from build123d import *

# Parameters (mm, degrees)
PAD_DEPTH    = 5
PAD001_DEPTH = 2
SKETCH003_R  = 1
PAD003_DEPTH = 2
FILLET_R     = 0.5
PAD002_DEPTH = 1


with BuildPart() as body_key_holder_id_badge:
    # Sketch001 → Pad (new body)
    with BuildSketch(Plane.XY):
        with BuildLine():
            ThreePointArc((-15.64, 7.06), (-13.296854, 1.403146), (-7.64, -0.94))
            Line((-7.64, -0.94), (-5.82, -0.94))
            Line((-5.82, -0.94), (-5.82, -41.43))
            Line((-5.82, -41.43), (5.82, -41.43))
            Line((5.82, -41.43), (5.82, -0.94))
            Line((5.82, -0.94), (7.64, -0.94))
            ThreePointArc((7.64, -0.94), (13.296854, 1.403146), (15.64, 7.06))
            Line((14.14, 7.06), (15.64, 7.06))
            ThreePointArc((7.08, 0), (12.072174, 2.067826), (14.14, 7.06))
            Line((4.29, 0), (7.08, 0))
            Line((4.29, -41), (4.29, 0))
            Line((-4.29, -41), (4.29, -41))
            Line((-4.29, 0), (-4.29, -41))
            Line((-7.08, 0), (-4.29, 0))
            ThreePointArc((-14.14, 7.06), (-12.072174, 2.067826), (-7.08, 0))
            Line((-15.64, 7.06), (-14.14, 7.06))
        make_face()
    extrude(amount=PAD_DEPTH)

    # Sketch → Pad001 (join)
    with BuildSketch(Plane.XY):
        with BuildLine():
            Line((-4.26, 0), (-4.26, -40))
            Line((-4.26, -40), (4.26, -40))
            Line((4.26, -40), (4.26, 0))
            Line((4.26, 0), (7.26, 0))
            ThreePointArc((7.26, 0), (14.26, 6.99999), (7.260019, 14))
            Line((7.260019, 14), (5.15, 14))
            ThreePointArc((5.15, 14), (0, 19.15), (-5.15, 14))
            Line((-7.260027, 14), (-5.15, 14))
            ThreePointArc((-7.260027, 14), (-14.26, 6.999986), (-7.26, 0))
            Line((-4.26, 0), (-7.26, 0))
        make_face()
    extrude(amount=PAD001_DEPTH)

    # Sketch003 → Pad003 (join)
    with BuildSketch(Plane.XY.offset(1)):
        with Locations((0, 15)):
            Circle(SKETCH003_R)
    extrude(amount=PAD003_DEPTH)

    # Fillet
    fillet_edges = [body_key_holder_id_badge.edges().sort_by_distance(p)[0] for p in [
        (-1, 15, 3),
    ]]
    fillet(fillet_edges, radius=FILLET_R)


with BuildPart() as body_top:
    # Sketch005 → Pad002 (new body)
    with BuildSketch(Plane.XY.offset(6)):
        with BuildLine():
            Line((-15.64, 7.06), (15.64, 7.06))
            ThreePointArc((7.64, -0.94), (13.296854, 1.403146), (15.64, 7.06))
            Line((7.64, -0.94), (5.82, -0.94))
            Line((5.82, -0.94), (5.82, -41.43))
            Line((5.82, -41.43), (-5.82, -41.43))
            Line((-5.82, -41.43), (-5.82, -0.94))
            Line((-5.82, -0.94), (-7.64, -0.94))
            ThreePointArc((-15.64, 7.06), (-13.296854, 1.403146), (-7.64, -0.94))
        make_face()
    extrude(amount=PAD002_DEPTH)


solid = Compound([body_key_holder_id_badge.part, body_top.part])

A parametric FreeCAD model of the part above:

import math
import FreeCAD as App
import Part
import Sketcher
Q = App.Units.Quantity


def edges_at(feature, points):
    """Names of the edges that pass closest to the given points."""
    edges = feature.Shape.Edges
    near = lambda p: min(range(len(edges)), key=lambda i: edges[i].distToShape(Part.Vertex(*p))[0])
    return sorted({f"Edge{near(p) + 1}" for p in points})

doc = App.newDocument("Part")
body = doc.addObject("PartDesign::Body", "Body")

# Sketch on XY plane
sketch1 = doc.addObject("Sketcher::SketchObject", "Sketch")
body.addObject(sketch1)
sketch1.AttachmentSupport = (doc.XY_Plane, [""])
sketch1.MapMode = "FlatFace"
sketch1.addGeometry([
    Part.ArcOfCircle(Part.Circle(App.Vector(-7.6, 7.1, 0), App.Vector(0, 0, 1), 8), math.radians(-180), math.radians(-90)),  # 0
    Part.LineSegment(App.Vector(-7.6, -0.9, 0), App.Vector(-5.8, -0.9, 0)),  # 1
    Part.LineSegment(App.Vector(-5.8, -0.9, 0), App.Vector(-5.8, -41.4, 0)),  # 2
    Part.LineSegment(App.Vector(-5.8, -41.4, 0), App.Vector(5.8, -41.4, 0)),  # 3
    Part.LineSegment(App.Vector(5.8, -41.4, 0), App.Vector(5.8, -0.9, 0)),  # 4
    Part.LineSegment(App.Vector(5.8, -0.9, 0), App.Vector(7.6, -0.9, 0)),  # 5
    Part.ArcOfCircle(Part.Circle(App.Vector(7.6, 7.1, 0), App.Vector(0, 0, 1), 8), math.radians(-90), math.radians(0)),  # 6
    Part.LineSegment(App.Vector(15.6, 7.1, 0), App.Vector(14.1, 7.1, 0)),  # 7
    Part.ArcOfCircle(Part.Circle(App.Vector(7.1, 7.1, 0), App.Vector(0, 0, 1), 7.1), math.radians(-90), math.radians(0)),  # 8
    Part.LineSegment(App.Vector(7.1, 0, 0), App.Vector(4.3, 0, 0)),  # 9
    Part.LineSegment(App.Vector(4.3, 0, 0), App.Vector(4.3, -41, 0)),  # 10
    Part.LineSegment(App.Vector(4.3, -41, 0), App.Vector(-4.3, -41, 0)),  # 11
    Part.LineSegment(App.Vector(-4.3, -41, 0), App.Vector(-4.3, 0, 0)),  # 12
    Part.LineSegment(App.Vector(-4.3, 0, 0), App.Vector(-7.1, 0, 0)),  # 13
    Part.ArcOfCircle(Part.Circle(App.Vector(-7.1, 7.1, 0), App.Vector(0, 0, 1), 7.1), math.radians(180), math.radians(270)),  # 14
    Part.LineSegment(App.Vector(-14.1, 7.1, 0), App.Vector(-15.6, 7.1, 0)),  # 15
], False)
sketch1.addConstraint([
    Sketcher.Constraint("Tangent", 0, 2, 1, 1),
    Sketcher.Constraint("Coincident", 1, 2, 2, 1),
    Sketcher.Constraint("Coincident", 2, 2, 3, 1),
    Sketcher.Constraint("Coincident", 3, 2, 4, 1),
    Sketcher.Constraint("Coincident", 4, 2, 5, 1),
    Sketcher.Constraint("Tangent", 5, 2, 6, 1),
    Sketcher.Constraint("Coincident", 6, 2, 7, 1),
    Sketcher.Constraint("Coincident", 7, 2, 8, 2),
    Sketcher.Constraint("Tangent", 8, 1, 9, 1),
    Sketcher.Constraint("Coincident", 9, 2, 10, 1),
    Sketcher.Constraint("Coincident", 10, 2, 11, 1),
    Sketcher.Constraint("Coincident", 11, 2, 12, 1),
    Sketcher.Constraint("Coincident", 12, 2, 13, 1),
    Sketcher.Constraint("Tangent", 13, 2, 14, 2),
    Sketcher.Constraint("Coincident", 14, 1, 15, 1),
    Sketcher.Constraint("Coincident", 15, 2, 0, 1),
    Sketcher.Constraint("Horizontal", 1),
    Sketcher.Constraint("Vertical", 2),
    Sketcher.Constraint("Horizontal", 3),
    Sketcher.Constraint("Vertical", 4),
    Sketcher.Constraint("Horizontal", 5),
    Sketcher.Constraint("Horizontal", 7),
    Sketcher.Constraint("Horizontal", 9),
    Sketcher.Constraint("Vertical", 10),
    Sketcher.Constraint("Horizontal", 11),
    Sketcher.Constraint("Vertical", 12),
    Sketcher.Constraint("Horizontal", 13),
    Sketcher.Constraint("Horizontal", 15),
    Sketcher.Constraint("Equal", 0, 6),
    Sketcher.Constraint("Equal", 8, 14),
    Sketcher.Constraint("Symmetric", 9, 2, 12, 2, -1, 1),
    Sketcher.Constraint("Symmetric", 0, 3, 6, 3, -2),
    Sketcher.Constraint("Symmetric", 8, 3, 14, 3, -2),
    Sketcher.Constraint("Horizontal", 6, 3, 8, 3),
    Sketcher.Constraint("Horizontal", 14, 3, 6, 2),
    Sketcher.Constraint("Horizontal", 7, 2, 14, 1),
    Sketcher.Constraint("Equal", 1, 5),
    Sketcher.Constraint("Radius", 0, Q("8.000001 mm")),
    Sketcher.Constraint("DistanceY", 10, 2, 10, 1, Q("41 mm")),
    Sketcher.Constraint("Radius", 8, Q("7.06 mm")),
    Sketcher.Constraint("DistanceX", 7, 2, 7, 1, Q("1.5 mm")),
    Sketcher.Constraint("DistanceX", 1, 1, 1, 2, Q("1.82 mm")),
    Sketcher.Constraint("DistanceX", 3, 1, 3, 2, Q("11.64 mm")),
    Sketcher.Constraint("DistanceX", 9, 2, 9, 1, Q("2.79 mm")),
    Sketcher.Constraint("DistanceY", 2, 2, 2, 1, Q("40.49 mm")),
])
pad1 = doc.addObject("PartDesign::Pad", "Pad")
body.addObject(pad1)
pad1.Profile = sketch1
pad1.Length = 5

# Sketch on XY plane
sketch2 = doc.addObject("Sketcher::SketchObject", "Sketch001")
body.addObject(sketch2)
sketch2.AttachmentSupport = (doc.XY_Plane, [""])
sketch2.MapMode = "FlatFace"
sketch2.addGeometry([
    Part.LineSegment(App.Vector(-4.3, 0, 0), App.Vector(-4.3, -40, 0)),  # 0
    Part.LineSegment(App.Vector(-4.3, -40, 0), App.Vector(4.3, -40, 0)),  # 1
    Part.LineSegment(App.Vector(4.3, -40, 0), App.Vector(4.3, 0, 0)),  # 2
    Part.LineSegment(App.Vector(4.3, 0, 0), App.Vector(7.3, 0, 0)),  # 3
    Part.ArcOfCircle(Part.Circle(App.Vector(7.3, 7, 0), App.Vector(0, 0, 1), 7), math.radians(-90), math.radians(90)),  # 4
    Part.LineSegment(App.Vector(7.3, 14, 0), App.Vector(5.2, 14, 0)),  # 5
    Part.ArcOfCircle(Part.Circle(App.Vector(0, 14, 0), App.Vector(0, 0, 1), 5.2), math.radians(0), math.radians(180)),  # 6
    Part.LineSegment(App.Vector(-5.2, 14, 0), App.Vector(-7.3, 14, 0)),  # 7
    Part.ArcOfCircle(Part.Circle(App.Vector(-7.3, 7, 0), App.Vector(0, 0, 1), 7), math.radians(90), math.radians(270)),  # 8
    Part.LineSegment(App.Vector(-7.3, 0, 0), App.Vector(-4.3, 0, 0)),  # 9
], False)
sketch2.addConstraint([
    Sketcher.Constraint("Coincident", 0, 2, 1, 1),
    Sketcher.Constraint("Coincident", 1, 2, 2, 1),
    Sketcher.Constraint("Coincident", 2, 2, 3, 1),
    Sketcher.Constraint("Tangent", 3, 2, 4, 1),
    Sketcher.Constraint("Coincident", 4, 2, 5, 1),
    Sketcher.Constraint("Coincident", 5, 2, 6, 1),
    Sketcher.Constraint("Coincident", 6, 2, 7, 1),
    Sketcher.Constraint("Coincident", 7, 2, 8, 1),
    Sketcher.Constraint("Tangent", 8, 2, 9, 1),
    Sketcher.Constraint("Coincident", 9, 2, 0, 1),
    Sketcher.Constraint("Vertical", 0),
    Sketcher.Constraint("Horizontal", 1),
    Sketcher.Constraint("Vertical", 2),
    Sketcher.Constraint("Horizontal", 3),
    Sketcher.Constraint("Horizontal", 5),
    Sketcher.Constraint("Horizontal", 7),
    Sketcher.Constraint("Horizontal", 9),
    Sketcher.Constraint("Equal", 4, 8),
    Sketcher.Constraint("Symmetric", 3, 2, 8, 2, -1, 1),
    Sketcher.Constraint("Symmetric", 5, 2, 6, 2, -2),
    Sketcher.Constraint("Horizontal", 6, 3, 4, 2),
    Sketcher.Constraint("Equal", 3, 9),
    Sketcher.Constraint("Radius", 4, Q("7 mm")),
    Sketcher.Constraint("DistanceX", 3, 1, 3, 2, Q("3 mm")),
    Sketcher.Constraint("DistanceY", 0, 2, 0, 1, Q("40 mm")),
    Sketcher.Constraint("Radius", 6, Q("5.15 mm")),
    Sketcher.Constraint("DistanceX", 1, 1, 1, 2, Q("8.52 mm")),
    Sketcher.Constraint("DistanceX", 5, 2, 5, 1, Q("2.110019 mm")),
    Sketcher.Constraint("DistanceX", 7, 2, 7, 1, Q("2.110027 mm")),
])
pad2 = doc.addObject("PartDesign::Pad", "Pad001")
body.addObject(pad2)
pad2.Profile = sketch2
pad2.Length = 2

# Sketch on XY plane
sketch3 = doc.addObject("Sketcher::SketchObject", "Sketch002")
body.addObject(sketch3)
sketch3.AttachmentSupport = (doc.XY_Plane, [""])
sketch3.MapMode = "FlatFace"
sketch3.AttachmentOffset = App.Placement(App.Vector(0, 0, 1), App.Rotation())
sketch3.addGeometry(Part.Circle(App.Vector(0, 15, 0), App.Vector(0, 0, 1), 1), False)
sketch3.addConstraint([
    Sketcher.Constraint("PointOnObject", 0, 3, -2),
    Sketcher.Constraint("Diameter", 0, Q("2 mm")),
    Sketcher.Constraint("DistanceY", -1, 1, 0, 3, Q("15 mm")),
])
pad3 = doc.addObject("PartDesign::Pad", "Pad002")
body.addObject(pad3)
pad3.Profile = sketch3
pad3.Length = 2
doc.recompute()

fillet = doc.addObject("PartDesign::Fillet", "Fillet")
body.addObject(fillet)
fillet.Base = (pad3, edges_at(pad3, [(-1, 15, 3)]))
fillet.Radius = 0.5
body2 = doc.addObject("PartDesign::Body", "Body001")

# Sketch on XY plane
sketch4 = doc.addObject("Sketcher::SketchObject", "Sketch003")
body2.addObject(sketch4)
sketch4.AttachmentSupport = (doc.getObject("XY_Plane001"), [""])
sketch4.MapMode = "FlatFace"
sketch4.AttachmentOffset = App.Placement(App.Vector(0, 0, 6), App.Rotation())
sketch4.addGeometry([
    Part.LineSegment(App.Vector(15.6, 7.1, 0), App.Vector(-15.6, 7.1, 0)),  # 0
    Part.ArcOfCircle(Part.Circle(App.Vector(-7.6, 7.1, 0), App.Vector(0, 0, 1), 8), math.radians(-180), math.radians(-90)),  # 1
    Part.LineSegment(App.Vector(-7.6, -0.9, 0), App.Vector(-5.8, -0.9, 0)),  # 2
    Part.LineSegment(App.Vector(-5.8, -0.9, 0), App.Vector(-5.8, -41.4, 0)),  # 3
    Part.LineSegment(App.Vector(-5.8, -41.4, 0), App.Vector(5.8, -41.4, 0)),  # 4
    Part.LineSegment(App.Vector(5.8, -41.4, 0), App.Vector(5.8, -0.9, 0)),  # 5
    Part.LineSegment(App.Vector(5.8, -0.9, 0), App.Vector(7.6, -0.9, 0)),  # 6
    Part.ArcOfCircle(Part.Circle(App.Vector(7.6, 7.1, 0), App.Vector(0, 0, 1), 8), math.radians(-90), math.radians(0)),  # 7
], False)
sketch4.addConstraint([
    Sketcher.Constraint("Coincident", 0, 2, 1, 1),
    Sketcher.Constraint("Tangent", 1, 2, 2, 1),
    Sketcher.Constraint("Coincident", 2, 2, 3, 1),
    Sketcher.Constraint("Coincident", 3, 2, 4, 1),
    Sketcher.Constraint("Coincident", 4, 2, 5, 1),
    Sketcher.Constraint("Coincident", 5, 2, 6, 1),
    Sketcher.Constraint("Tangent", 6, 2, 7, 1),
    Sketcher.Constraint("Coincident", 7, 2, 0, 1),
    Sketcher.Constraint("Horizontal", 0),
    Sketcher.Constraint("Horizontal", 2),
    Sketcher.Constraint("Vertical", 3),
    Sketcher.Constraint("Horizontal", 4),
    Sketcher.Constraint("Vertical", 5),
    Sketcher.Constraint("Horizontal", 6),
    Sketcher.Constraint("Equal", 1, 7),
    Sketcher.Constraint("Symmetric", 1, 3, 7, 3, -2),
    Sketcher.Constraint("Horizontal", 7, 3, 0, 2),
    Sketcher.Constraint("Equal", 2, 6),
    Sketcher.Constraint("Radius", 1, Q("8.000001 mm")),
    Sketcher.Constraint("DistanceX", 0, 2, 0, 1, Q("31.28 mm")),
    Sketcher.Constraint("DistanceX", 2, 1, 2, 2, Q("1.82 mm")),
    Sketcher.Constraint("DistanceY", 3, 2, 3, 1, Q("40.49 mm")),
    Sketcher.Constraint("DistanceY", -1, 1, 1, 3, Q("7.060001 mm")),
])
pad4 = doc.addObject("PartDesign::Pad", "Pad003")
body2.addObject(pad4)
pad4.Profile = sketch4
pad4.Length = 1

doc.recompute()
